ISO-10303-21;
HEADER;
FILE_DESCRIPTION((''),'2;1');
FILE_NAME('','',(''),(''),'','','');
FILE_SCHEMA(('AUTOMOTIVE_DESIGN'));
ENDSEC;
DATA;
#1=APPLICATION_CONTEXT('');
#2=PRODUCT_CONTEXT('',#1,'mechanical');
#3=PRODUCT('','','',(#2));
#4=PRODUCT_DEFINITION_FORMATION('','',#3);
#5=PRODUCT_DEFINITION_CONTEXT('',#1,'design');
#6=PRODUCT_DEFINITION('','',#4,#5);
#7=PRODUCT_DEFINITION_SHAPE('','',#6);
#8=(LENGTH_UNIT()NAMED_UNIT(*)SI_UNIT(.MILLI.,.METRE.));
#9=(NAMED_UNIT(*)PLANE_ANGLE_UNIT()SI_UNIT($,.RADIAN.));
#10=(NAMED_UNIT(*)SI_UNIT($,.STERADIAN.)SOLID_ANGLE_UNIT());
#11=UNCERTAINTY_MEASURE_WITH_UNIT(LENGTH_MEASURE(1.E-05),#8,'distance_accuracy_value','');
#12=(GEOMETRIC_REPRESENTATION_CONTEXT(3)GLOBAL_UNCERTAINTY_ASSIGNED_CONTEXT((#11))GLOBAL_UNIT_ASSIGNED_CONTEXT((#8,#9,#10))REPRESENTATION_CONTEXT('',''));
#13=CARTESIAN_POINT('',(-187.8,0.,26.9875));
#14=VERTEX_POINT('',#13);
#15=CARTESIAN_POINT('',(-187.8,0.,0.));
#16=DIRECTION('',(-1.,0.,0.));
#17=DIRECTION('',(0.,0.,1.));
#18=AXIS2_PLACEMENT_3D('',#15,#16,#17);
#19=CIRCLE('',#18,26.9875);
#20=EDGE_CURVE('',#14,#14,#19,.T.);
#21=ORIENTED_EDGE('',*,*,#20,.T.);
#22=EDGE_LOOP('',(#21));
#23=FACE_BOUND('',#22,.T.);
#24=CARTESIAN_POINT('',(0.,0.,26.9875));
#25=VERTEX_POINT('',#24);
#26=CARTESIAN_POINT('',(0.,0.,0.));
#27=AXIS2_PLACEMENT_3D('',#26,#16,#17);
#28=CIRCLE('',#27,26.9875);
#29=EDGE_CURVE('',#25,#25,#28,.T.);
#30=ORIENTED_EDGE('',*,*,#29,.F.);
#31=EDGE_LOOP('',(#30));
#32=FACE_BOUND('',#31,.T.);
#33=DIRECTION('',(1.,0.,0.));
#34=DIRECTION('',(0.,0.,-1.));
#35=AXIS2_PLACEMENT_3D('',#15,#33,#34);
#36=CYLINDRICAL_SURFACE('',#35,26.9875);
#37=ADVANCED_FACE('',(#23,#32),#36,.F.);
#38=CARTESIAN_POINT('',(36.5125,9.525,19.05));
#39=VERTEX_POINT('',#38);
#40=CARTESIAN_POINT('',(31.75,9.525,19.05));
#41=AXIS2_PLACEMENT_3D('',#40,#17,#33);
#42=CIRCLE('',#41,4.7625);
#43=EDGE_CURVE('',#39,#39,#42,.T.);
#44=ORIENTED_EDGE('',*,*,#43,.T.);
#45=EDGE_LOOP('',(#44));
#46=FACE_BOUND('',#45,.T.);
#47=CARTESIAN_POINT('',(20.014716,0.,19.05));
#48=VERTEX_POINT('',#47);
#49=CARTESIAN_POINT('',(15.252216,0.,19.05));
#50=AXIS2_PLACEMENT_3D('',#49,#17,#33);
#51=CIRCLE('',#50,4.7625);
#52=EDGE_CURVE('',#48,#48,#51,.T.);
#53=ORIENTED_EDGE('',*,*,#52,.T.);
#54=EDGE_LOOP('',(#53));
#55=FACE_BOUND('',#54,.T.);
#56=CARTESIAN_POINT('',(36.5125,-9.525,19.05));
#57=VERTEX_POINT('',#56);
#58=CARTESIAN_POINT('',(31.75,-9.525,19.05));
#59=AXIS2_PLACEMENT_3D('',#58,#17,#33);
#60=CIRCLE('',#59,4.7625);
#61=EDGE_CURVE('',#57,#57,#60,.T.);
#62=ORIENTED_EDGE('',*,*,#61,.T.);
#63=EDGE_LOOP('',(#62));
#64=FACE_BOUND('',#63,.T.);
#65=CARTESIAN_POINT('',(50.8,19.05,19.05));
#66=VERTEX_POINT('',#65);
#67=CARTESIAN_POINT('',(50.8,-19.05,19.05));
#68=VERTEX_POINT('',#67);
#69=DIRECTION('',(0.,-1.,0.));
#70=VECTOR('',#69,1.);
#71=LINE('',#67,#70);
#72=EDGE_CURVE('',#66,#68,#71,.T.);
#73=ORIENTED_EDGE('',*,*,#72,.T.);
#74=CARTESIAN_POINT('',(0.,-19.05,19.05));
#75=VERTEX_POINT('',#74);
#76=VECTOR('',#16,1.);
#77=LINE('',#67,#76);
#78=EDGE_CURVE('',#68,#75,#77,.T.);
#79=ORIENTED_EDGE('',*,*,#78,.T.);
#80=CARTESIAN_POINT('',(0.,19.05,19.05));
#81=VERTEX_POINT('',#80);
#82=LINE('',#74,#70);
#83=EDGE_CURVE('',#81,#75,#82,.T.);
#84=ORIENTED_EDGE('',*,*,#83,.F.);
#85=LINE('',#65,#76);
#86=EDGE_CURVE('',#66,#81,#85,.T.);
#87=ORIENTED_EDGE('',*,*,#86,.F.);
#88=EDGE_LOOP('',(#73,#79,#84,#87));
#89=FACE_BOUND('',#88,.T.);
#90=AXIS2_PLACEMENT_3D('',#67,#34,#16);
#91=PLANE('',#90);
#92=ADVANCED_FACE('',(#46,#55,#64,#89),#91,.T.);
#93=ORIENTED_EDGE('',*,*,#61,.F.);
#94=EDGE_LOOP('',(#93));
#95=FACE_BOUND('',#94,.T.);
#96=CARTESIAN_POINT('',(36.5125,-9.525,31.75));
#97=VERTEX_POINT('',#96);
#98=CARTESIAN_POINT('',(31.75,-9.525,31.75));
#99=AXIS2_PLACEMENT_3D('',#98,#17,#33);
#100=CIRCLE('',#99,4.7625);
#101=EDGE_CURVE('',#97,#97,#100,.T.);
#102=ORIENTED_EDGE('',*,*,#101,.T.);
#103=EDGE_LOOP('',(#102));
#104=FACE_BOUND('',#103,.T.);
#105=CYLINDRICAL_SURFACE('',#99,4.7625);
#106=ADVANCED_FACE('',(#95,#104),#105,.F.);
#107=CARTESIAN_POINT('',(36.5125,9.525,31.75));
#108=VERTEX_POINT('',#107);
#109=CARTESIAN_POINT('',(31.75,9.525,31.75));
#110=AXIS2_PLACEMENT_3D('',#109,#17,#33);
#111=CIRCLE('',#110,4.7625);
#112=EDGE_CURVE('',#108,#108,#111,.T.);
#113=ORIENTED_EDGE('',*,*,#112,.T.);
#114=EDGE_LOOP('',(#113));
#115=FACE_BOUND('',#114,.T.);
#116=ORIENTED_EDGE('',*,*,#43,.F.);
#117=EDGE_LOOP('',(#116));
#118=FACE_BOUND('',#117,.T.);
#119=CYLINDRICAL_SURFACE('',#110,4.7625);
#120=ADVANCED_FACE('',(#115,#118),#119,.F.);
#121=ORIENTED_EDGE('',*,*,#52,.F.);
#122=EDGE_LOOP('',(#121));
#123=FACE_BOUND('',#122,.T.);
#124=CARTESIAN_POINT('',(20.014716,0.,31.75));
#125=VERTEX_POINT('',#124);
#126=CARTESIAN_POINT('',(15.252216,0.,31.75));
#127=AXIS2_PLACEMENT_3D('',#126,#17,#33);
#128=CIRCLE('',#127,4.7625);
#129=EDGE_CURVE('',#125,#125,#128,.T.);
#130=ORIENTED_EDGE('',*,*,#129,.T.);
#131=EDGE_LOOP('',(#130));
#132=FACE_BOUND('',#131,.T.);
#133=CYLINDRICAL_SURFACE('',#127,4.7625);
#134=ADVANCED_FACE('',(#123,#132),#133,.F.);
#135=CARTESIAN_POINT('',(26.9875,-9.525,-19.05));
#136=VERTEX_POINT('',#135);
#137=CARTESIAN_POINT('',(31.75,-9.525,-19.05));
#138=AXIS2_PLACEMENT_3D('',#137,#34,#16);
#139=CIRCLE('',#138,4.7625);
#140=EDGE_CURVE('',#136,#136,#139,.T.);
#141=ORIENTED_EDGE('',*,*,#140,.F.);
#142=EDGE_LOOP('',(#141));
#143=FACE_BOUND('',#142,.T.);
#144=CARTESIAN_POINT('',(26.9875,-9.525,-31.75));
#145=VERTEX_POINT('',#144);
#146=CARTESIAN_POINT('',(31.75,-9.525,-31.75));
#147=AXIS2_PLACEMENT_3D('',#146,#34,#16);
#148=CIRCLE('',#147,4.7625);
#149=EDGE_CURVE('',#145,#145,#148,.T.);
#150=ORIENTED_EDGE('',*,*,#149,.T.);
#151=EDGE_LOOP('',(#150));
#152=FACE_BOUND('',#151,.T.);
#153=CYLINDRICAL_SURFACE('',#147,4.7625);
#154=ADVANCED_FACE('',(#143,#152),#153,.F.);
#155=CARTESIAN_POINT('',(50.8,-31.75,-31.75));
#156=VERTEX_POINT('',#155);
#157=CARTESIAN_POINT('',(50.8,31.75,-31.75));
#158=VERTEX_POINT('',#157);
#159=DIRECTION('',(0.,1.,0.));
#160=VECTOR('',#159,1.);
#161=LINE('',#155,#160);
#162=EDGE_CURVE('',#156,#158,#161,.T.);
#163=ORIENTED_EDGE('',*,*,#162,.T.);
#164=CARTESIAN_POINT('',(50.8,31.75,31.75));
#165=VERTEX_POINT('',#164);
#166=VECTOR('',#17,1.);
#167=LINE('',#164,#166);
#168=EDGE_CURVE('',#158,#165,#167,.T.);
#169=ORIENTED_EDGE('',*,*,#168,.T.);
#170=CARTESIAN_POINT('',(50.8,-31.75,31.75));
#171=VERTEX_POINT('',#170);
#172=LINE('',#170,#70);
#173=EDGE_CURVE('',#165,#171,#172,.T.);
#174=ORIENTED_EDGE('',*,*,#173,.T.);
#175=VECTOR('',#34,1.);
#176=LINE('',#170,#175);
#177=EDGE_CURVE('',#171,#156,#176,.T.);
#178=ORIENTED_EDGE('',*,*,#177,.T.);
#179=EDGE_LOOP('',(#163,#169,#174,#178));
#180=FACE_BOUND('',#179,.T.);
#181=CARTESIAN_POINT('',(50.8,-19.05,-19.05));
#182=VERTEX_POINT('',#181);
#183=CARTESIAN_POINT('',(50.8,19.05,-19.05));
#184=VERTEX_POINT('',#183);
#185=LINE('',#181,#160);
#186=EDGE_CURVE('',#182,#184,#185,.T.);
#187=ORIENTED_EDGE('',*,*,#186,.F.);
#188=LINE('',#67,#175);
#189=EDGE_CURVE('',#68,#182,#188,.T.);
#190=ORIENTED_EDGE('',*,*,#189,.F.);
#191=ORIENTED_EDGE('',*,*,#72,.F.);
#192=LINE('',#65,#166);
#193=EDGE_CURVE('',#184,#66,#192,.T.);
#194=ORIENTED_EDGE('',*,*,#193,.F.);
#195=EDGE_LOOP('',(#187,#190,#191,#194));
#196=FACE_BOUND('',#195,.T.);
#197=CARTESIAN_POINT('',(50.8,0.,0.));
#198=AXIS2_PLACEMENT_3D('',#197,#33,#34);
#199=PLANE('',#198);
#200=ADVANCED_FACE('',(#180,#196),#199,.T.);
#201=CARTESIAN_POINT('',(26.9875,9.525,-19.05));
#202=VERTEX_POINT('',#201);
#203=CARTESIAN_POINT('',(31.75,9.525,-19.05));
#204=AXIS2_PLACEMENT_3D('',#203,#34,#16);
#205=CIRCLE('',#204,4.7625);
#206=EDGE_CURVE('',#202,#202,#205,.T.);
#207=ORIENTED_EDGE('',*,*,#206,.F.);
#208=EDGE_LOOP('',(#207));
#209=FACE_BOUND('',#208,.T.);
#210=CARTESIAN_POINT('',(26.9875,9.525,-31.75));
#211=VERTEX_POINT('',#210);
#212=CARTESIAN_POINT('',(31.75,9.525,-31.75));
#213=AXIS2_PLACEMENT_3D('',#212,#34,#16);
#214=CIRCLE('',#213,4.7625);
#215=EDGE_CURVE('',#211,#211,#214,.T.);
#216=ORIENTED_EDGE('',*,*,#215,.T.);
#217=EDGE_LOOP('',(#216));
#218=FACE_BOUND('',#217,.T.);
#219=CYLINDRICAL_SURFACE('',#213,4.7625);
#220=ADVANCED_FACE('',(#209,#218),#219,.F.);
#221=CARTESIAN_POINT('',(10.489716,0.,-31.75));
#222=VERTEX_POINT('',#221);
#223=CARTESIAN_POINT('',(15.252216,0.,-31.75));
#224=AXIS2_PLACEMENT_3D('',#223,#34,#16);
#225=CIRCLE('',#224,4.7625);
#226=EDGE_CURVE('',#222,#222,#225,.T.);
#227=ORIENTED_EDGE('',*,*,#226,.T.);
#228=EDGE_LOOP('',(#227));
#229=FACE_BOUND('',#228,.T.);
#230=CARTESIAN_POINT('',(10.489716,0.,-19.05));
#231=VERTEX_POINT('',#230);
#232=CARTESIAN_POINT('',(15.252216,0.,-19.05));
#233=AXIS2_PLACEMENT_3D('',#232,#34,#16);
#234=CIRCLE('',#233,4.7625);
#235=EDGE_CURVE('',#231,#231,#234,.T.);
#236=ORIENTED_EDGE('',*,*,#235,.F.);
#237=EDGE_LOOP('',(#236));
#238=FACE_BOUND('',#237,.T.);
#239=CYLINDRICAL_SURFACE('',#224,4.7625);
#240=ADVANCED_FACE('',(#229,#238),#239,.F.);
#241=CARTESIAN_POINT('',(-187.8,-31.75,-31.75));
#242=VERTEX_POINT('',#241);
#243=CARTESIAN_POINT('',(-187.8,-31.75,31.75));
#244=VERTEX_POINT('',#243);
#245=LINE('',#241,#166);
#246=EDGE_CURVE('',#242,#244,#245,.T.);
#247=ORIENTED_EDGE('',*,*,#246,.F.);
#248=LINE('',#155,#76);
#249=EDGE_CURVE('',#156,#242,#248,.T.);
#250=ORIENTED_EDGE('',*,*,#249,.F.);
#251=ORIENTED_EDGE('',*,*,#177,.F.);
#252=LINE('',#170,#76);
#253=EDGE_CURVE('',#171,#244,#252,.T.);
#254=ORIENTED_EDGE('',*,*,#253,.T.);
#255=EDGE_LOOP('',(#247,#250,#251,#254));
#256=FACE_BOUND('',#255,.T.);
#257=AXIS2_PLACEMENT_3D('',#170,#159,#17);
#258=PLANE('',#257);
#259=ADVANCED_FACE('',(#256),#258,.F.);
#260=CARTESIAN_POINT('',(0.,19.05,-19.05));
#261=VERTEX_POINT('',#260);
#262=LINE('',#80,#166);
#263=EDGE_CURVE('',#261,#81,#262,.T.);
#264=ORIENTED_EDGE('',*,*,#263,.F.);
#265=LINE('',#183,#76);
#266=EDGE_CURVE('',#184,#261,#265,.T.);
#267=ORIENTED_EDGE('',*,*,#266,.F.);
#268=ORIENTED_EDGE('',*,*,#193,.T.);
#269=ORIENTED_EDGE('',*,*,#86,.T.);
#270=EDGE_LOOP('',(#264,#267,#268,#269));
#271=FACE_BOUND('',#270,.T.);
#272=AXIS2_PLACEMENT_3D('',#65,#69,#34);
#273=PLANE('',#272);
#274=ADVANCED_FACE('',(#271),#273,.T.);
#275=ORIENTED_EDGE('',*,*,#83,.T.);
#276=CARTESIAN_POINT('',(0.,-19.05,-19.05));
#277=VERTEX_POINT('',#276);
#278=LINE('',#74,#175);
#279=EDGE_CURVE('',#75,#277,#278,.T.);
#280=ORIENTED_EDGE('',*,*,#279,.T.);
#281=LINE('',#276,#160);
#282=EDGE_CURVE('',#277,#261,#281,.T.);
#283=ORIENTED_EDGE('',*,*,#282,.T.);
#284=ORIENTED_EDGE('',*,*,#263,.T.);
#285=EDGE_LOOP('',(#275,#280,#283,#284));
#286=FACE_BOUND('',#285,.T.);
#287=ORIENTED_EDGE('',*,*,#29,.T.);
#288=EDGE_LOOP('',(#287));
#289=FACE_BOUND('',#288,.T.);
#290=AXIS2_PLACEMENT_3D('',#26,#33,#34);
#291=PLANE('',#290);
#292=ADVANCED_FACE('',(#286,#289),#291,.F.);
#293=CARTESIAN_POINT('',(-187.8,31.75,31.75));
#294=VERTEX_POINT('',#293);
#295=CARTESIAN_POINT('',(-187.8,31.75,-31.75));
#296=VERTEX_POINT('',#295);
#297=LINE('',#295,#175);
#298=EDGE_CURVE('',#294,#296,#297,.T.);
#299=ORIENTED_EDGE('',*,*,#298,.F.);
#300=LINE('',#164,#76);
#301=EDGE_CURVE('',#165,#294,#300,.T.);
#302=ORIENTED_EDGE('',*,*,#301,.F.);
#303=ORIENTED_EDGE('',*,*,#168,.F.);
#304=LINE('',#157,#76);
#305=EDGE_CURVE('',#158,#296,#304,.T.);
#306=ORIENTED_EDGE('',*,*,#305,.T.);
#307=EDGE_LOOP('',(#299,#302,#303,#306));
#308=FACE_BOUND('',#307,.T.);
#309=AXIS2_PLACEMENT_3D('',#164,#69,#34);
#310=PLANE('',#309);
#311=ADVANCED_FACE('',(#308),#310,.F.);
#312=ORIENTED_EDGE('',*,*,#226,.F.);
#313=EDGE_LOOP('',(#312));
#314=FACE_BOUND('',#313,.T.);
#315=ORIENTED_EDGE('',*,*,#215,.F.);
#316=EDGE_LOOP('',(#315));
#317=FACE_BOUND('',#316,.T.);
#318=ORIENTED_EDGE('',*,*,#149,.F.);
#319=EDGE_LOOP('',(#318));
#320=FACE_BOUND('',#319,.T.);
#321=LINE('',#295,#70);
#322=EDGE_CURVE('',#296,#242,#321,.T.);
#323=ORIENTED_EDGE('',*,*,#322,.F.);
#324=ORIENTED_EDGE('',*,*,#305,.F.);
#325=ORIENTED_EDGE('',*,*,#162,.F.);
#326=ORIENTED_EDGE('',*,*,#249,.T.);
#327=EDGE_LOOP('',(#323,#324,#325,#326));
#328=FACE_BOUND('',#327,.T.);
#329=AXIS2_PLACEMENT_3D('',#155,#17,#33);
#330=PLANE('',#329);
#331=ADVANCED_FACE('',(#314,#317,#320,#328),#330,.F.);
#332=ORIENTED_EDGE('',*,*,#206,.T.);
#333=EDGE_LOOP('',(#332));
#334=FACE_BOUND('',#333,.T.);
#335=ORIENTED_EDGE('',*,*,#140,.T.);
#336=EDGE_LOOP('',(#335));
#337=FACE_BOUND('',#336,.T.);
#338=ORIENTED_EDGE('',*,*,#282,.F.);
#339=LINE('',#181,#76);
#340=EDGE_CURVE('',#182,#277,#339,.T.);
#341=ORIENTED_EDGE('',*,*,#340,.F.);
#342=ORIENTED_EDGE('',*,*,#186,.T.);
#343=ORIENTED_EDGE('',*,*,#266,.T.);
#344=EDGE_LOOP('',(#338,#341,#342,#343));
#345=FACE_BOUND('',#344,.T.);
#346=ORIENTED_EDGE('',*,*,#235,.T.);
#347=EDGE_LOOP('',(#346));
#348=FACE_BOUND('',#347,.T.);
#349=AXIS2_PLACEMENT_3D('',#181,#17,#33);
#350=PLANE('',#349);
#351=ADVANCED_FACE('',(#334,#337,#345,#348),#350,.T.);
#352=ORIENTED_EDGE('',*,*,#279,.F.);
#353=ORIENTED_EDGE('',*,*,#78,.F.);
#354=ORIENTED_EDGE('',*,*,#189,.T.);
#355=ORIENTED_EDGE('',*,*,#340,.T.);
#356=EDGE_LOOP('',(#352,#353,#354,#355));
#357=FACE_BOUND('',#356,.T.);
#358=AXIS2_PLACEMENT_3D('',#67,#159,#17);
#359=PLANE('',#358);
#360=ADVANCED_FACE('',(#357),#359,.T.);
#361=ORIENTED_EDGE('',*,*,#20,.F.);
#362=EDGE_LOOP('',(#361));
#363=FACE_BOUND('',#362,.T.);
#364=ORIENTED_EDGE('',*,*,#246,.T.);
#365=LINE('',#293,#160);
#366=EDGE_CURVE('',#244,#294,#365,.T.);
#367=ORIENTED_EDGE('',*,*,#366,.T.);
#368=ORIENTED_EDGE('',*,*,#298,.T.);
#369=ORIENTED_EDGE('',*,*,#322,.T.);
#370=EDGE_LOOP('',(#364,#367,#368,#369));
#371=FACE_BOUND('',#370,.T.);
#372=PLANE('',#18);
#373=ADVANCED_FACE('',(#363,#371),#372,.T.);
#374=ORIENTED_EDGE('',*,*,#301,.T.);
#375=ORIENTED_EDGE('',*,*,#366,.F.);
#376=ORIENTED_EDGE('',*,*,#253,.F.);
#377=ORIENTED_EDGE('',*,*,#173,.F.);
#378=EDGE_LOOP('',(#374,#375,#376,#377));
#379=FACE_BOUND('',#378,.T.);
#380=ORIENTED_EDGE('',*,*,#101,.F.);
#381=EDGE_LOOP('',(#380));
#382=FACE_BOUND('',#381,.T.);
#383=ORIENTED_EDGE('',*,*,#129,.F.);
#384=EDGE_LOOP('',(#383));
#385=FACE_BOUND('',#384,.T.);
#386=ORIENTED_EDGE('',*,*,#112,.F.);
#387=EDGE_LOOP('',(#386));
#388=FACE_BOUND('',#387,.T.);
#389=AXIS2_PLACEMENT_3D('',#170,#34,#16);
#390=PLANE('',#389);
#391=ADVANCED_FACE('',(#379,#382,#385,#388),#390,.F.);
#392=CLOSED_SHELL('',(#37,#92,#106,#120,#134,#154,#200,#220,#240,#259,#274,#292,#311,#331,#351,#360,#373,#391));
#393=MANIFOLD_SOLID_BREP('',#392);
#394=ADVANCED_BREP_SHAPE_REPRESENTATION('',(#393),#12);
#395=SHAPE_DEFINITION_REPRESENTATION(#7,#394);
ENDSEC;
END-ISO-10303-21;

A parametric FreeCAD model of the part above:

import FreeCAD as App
import Part
import Sketcher
from FreeCAD import Vector
Q = App.Units.Quantity

doc = App.newDocument("Part")
body = doc.addObject("PartDesign::Body", "Body")

sketch1 = doc.addObject("Sketcher::SketchObject", "Sketch")
body.addObject(sketch1)
sketch1.AttachmentSupport = (doc.YZ_Plane, [""])
sketch1.MapMode = "FlatFace"
sketch1.addGeometry([
    Part.LineSegment(Vector(-32, 32, 0), Vector(-32, -32, 0)),
    Part.LineSegment(Vector(-32, -32, 0), Vector(32, -32, 0)),
    Part.LineSegment(Vector(32, -32, 0), Vector(32, 32, 0)),
    Part.LineSegment(Vector(32, 32, 0), Vector(-32, 32, 0)),
    Part.LineSegment(Vector(19, -19, 0), Vector(-19, -19, 0)),
    Part.LineSegment(Vector(-19, -19, 0), Vector(-19, 19, 0)),
    Part.LineSegment(Vector(-19, 19, 0), Vector(19, 19, 0)),
    Part.LineSegment(Vector(19, 19, 0), Vector(19, -19, 0)),
], False)
sketch1.addConstraint([
    Sketcher.Constraint("Coincident", 0, 2, 1, 1),
    Sketcher.Constraint("Coincident", 1, 2, 2, 1),
    Sketcher.Constraint("Coincident", 2, 2, 3, 1),
    Sketcher.Constraint("Coincident", 3, 2, 0, 1),
    Sketcher.Constraint("Coincident", 4, 2, 5, 1),
    Sketcher.Constraint("Coincident", 5, 2, 6, 1),
    Sketcher.Constraint("Coincident", 6, 2, 7, 1),
    Sketcher.Constraint("Coincident", 7, 2, 4, 1),
    Sketcher.Constraint("Vertical", 0),
    Sketcher.Constraint("Horizontal", 1),
    Sketcher.Constraint("Vertical", 2),
    Sketcher.Constraint("Horizontal", 3),
    Sketcher.Constraint("Horizontal", 4),
    Sketcher.Constraint("Vertical", 5),
    Sketcher.Constraint("Horizontal", 6),
    Sketcher.Constraint("Vertical", 7),
    Sketcher.Constraint("Symmetric", 0, 2, 2, 2, -1, 1),
    Sketcher.Constraint("Symmetric", 4, 2, 6, 2, -1, 1),
    Sketcher.Constraint("Equal", 3, 0),
    Sketcher.Constraint("Equal", 6, 5),
    Sketcher.Constraint("DistanceX", 1, 1, 1, 2, Q("2.5 in")),
    Sketcher.Constraint("DistanceX", 4, 2, 4, 1, Q("1.5 in")),
])
pad1 = doc.addObject("PartDesign::Pad", "Pad")
body.addObject(pad1)
pad1.Profile = sketch1
pad1.Length = Q("2 in")

sketch2 = doc.addObject("Sketcher::SketchObject", "Sketch001")
body.addObject(sketch2)
sketch2.AttachmentSupport = (doc.YZ_Plane, [""])
sketch2.MapMode = "FlatFace"
sketch2.addGeometry([
    Part.LineSegment(Vector(32, -32, 0), Vector(-32, -32, 0)),
    Part.LineSegment(Vector(-32, -32, 0), Vector(-32, 32, 0)),
    Part.LineSegment(Vector(-32, 32, 0), Vector(32, 32, 0)),
    Part.LineSegment(Vector(32, 32, 0), Vector(32, -32, 0)),
    Part.Circle(Vector(0, 0, 0), Vector(0, 0, 1), 27),
], False)
sketch2.addConstraint([
    Sketcher.Constraint("Coincident", 0, 2, 1, 1),
    Sketcher.Constraint("Coincident", 1, 2, 2, 1),
    Sketcher.Constraint("Coincident", 2, 2, 3, 1),
    Sketcher.Constraint("Coincident", 3, 2, 0, 1),
    Sketcher.Constraint("Horizontal", 0),
    Sketcher.Constraint("Vertical", 1),
    Sketcher.Constraint("Horizontal", 2),
    Sketcher.Constraint("Vertical", 3),
    Sketcher.Constraint("Coincident", 4, 3, -1, 1),
    Sketcher.Constraint("Symmetric", 0, 2, 2, 2, -1, 1),
    Sketcher.Constraint("Equal", 2, 1),
    Sketcher.Constraint("Diameter", 4, Q("2.125 in")),
    Sketcher.Constraint("DistanceX", 0, 2, 0, 1, Q("2.5 in")),
])
pad2 = doc.addObject("PartDesign::Pad", "Pad001")
body.addObject(pad2)
pad2.Profile = sketch2
pad2.Length = 187.8
pad2.Reversed = True

sketch3 = doc.addObject("Sketcher::SketchObject", "Sketch002")
body.addObject(sketch3)
sketch3.AttachmentSupport = (doc.XY_Plane, [""])
sketch3.MapMode = "FlatFace"
sketch3.AttachmentOffset = App.Placement(Vector(0, 0, -1.25 * 25.4), App.Rotation())
sketch3.addGeometry([
    Part.Circle(Vector(15.3, 0, 0), Vector(0, 0, 1), 4.8),
    Part.Circle(Vector(31.8, 9.5, 0), Vector(0, 0, 1), 4.8),
    Part.Circle(Vector(31.8, -9.5, 0), Vector(0, 0, 1), 4.8),
], False)
sketch3.addConstraint([
    Sketcher.Constraint("Equal", 0, 1),
    Sketcher.Constraint("Equal", 1, 2),
    Sketcher.Constraint("Symmetric", 1, 3, 2, 3, -1),
    Sketcher.Constraint("PointOnObject", 0, 3, -1),
    Sketcher.Constraint("Diameter", 0, Q("0.375 in")),
    Sketcher.Constraint("DistanceX", -1, 1, 1, 3, Q("1.25 in")),
    Sketcher.Constraint("DistanceY", 2, 3, 1, 3, Q("0.75 in")),
    Sketcher.Constraint("DistanceX", -1, 1, 0, 3, 15.252216),
])
doc.recompute()
hole = doc.addObject("PartDesign::Hole", "Hole")
body.addObject(hole)
hole.Profile = sketch3
hole.ThreadType = "None"
hole.Diameter = Q("0.375 in")
hole.DepthType = "Dimension"
hole.Depth = Q("0.5 in")
hole.DrillPoint = "Flat"
hole.Reversed = True

sketch4 = doc.addObject("Sketcher::SketchObject", "Sketch003")
body.addObject(sketch4)
sketch4.AttachmentSupport = (doc.XY_Plane, [""])
sketch4.MapMode = "FlatFace"
sketch4.AttachmentOffset = App.Placement(Vector(0, 0, 1.25 * 25.4), App.Rotation())
sketch4.addGeometry([
    Part.Circle(Vector(31.8, -9.5, 0), Vector(0, 0, 1), 4.8),
    Part.Circle(Vector(31.8, 9.5, 0), Vector(0, 0, 1), 4.8),
    Part.Circle(Vector(15.3, 0, 0), Vector(0, 0, 1), 4.8),
], False)
sketch4.addConstraint([
    Sketcher.Constraint("Equal", 0, 1),
    Sketcher.Constraint("Equal", 1, 2),
    Sketcher.Constraint("Symmetric", 0, 3, 1, 3, -1),
    Sketcher.Constraint("PointOnObject", 2, 3, -1),
    Sketcher.Constraint("Diameter", 0, Q("0.375 in")),
    Sketcher.Constraint("DistanceX", -1, 1, 0, 3, Q("1.25 in")),
    Sketcher.Constraint("DistanceY", 0, 3, 1, 3, Q("0.75 in")),
    Sketcher.Constraint("DistanceX", -1, 1, 2, 3, 15.252216),
])
doc.recompute()
hole2 = doc.addObject("PartDesign::Hole", "Hole001")
body.addObject(hole2)
hole2.Profile = sketch4
hole2.ThreadType = "None"
hole2.Diameter = Q("0.375 in")
hole2.DepthType = "ThroughAll"

doc.recompute()
